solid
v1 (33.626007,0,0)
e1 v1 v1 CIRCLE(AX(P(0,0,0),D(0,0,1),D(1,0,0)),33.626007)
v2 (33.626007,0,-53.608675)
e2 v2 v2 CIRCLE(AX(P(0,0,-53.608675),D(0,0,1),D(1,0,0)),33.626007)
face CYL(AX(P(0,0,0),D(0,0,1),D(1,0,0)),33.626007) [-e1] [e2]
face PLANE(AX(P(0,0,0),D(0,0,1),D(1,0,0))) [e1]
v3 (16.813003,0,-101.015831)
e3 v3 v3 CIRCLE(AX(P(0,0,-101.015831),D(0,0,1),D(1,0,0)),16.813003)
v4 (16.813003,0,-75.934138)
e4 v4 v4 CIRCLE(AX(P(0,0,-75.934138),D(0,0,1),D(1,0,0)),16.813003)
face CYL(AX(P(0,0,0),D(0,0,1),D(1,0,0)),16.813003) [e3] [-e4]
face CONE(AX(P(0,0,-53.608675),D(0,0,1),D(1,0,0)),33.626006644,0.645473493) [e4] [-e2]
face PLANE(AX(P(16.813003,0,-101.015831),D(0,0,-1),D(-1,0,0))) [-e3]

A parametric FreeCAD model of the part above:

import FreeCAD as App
import Part
import Sketcher

V = App.Vector
Q = App.Units.Quantity

doc = App.newDocument("Part")
body = doc.addObject("PartDesign::Body", "Body")

# Sketch on XZ plane
sketch1 = body.newObject("Sketcher::SketchObject", "Sketch")
sketch1.AttachmentSupport = (doc.getObject("XZ_Plane"), [""])
sketch1.MapMode = "FlatFace"
sketch1.addGeometry(Part.LineSegment(V(0, 0, 0), V(34, 0, 0)), False)
sketch1.addGeometry(Part.LineSegment(V(34, 0, 0), V(34, -54, 0)), False)
sketch1.addGeometry(Part.LineSegment(V(34, -54, 0), V(17, -76, 0)), False)
sketch1.addGeometry(Part.LineSegment(V(17, -76, 0), V(17, -101, 0)), False)
sketch1.addGeometry(Part.LineSegment(V(17, -101, 0), V(0, -101, 0)), False)
sketch1.addGeometry(Part.LineSegment(V(0, -101, 0), V(0, 0, 0)), False)
sketch1.addConstraint(Sketcher.Constraint("Coincident", 0, 2, 1, 1))
sketch1.addConstraint(Sketcher.Constraint("Coincident", 1, 2, 2, 1))
sketch1.addConstraint(Sketcher.Constraint("Coincident", 2, 2, 3, 1))
sketch1.addConstraint(Sketcher.Constraint("Coincident", 3, 2, 4, 1))
sketch1.addConstraint(Sketcher.Constraint("Coincident", 4, 2, 5, 1))
sketch1.addConstraint(Sketcher.Constraint("Coincident", 5, 2, 0, 1))
sketch1.addConstraint(Sketcher.Constraint("Horizontal", 0))
sketch1.addConstraint(Sketcher.Constraint("Vertical", 1))
sketch1.addConstraint(Sketcher.Constraint("Vertical", 3))
sketch1.addConstraint(Sketcher.Constraint("Horizontal", 4))
sketch1.addConstraint(Sketcher.Constraint("Vertical", 5))
sketch1.addConstraint(Sketcher.Constraint("Coincident", 5, 2, -1, 1))
sketch1.addConstraint(Sketcher.Constraint("DistanceY", 5, 1, 5, 2, Q("101.015831 mm")))
sketch1.addConstraint(Sketcher.Constraint("DistanceX", 0, 1, 0, 2, Q("33.626007 mm")))
sketch1.addConstraint(Sketcher.Constraint("DistanceX", 4, 2, 4, 1, Q("16.813003 mm")))
sketch1.addConstraint(Sketcher.Constraint("DistanceY", 1, 2, 1, 1, Q("53.608675 mm")))
sketch1.addConstraint(Sketcher.Constraint("DistanceY", 3, 2, 3, 1, Q("25.081693 mm")))
revolution = body.newObject("PartDesign::Revolution", "Revolution")
revolution.Profile = sketch1
revolution.ReferenceAxis = (sketch1, ["V_Axis"])
revolution.Angle = 360

doc.recompute()
